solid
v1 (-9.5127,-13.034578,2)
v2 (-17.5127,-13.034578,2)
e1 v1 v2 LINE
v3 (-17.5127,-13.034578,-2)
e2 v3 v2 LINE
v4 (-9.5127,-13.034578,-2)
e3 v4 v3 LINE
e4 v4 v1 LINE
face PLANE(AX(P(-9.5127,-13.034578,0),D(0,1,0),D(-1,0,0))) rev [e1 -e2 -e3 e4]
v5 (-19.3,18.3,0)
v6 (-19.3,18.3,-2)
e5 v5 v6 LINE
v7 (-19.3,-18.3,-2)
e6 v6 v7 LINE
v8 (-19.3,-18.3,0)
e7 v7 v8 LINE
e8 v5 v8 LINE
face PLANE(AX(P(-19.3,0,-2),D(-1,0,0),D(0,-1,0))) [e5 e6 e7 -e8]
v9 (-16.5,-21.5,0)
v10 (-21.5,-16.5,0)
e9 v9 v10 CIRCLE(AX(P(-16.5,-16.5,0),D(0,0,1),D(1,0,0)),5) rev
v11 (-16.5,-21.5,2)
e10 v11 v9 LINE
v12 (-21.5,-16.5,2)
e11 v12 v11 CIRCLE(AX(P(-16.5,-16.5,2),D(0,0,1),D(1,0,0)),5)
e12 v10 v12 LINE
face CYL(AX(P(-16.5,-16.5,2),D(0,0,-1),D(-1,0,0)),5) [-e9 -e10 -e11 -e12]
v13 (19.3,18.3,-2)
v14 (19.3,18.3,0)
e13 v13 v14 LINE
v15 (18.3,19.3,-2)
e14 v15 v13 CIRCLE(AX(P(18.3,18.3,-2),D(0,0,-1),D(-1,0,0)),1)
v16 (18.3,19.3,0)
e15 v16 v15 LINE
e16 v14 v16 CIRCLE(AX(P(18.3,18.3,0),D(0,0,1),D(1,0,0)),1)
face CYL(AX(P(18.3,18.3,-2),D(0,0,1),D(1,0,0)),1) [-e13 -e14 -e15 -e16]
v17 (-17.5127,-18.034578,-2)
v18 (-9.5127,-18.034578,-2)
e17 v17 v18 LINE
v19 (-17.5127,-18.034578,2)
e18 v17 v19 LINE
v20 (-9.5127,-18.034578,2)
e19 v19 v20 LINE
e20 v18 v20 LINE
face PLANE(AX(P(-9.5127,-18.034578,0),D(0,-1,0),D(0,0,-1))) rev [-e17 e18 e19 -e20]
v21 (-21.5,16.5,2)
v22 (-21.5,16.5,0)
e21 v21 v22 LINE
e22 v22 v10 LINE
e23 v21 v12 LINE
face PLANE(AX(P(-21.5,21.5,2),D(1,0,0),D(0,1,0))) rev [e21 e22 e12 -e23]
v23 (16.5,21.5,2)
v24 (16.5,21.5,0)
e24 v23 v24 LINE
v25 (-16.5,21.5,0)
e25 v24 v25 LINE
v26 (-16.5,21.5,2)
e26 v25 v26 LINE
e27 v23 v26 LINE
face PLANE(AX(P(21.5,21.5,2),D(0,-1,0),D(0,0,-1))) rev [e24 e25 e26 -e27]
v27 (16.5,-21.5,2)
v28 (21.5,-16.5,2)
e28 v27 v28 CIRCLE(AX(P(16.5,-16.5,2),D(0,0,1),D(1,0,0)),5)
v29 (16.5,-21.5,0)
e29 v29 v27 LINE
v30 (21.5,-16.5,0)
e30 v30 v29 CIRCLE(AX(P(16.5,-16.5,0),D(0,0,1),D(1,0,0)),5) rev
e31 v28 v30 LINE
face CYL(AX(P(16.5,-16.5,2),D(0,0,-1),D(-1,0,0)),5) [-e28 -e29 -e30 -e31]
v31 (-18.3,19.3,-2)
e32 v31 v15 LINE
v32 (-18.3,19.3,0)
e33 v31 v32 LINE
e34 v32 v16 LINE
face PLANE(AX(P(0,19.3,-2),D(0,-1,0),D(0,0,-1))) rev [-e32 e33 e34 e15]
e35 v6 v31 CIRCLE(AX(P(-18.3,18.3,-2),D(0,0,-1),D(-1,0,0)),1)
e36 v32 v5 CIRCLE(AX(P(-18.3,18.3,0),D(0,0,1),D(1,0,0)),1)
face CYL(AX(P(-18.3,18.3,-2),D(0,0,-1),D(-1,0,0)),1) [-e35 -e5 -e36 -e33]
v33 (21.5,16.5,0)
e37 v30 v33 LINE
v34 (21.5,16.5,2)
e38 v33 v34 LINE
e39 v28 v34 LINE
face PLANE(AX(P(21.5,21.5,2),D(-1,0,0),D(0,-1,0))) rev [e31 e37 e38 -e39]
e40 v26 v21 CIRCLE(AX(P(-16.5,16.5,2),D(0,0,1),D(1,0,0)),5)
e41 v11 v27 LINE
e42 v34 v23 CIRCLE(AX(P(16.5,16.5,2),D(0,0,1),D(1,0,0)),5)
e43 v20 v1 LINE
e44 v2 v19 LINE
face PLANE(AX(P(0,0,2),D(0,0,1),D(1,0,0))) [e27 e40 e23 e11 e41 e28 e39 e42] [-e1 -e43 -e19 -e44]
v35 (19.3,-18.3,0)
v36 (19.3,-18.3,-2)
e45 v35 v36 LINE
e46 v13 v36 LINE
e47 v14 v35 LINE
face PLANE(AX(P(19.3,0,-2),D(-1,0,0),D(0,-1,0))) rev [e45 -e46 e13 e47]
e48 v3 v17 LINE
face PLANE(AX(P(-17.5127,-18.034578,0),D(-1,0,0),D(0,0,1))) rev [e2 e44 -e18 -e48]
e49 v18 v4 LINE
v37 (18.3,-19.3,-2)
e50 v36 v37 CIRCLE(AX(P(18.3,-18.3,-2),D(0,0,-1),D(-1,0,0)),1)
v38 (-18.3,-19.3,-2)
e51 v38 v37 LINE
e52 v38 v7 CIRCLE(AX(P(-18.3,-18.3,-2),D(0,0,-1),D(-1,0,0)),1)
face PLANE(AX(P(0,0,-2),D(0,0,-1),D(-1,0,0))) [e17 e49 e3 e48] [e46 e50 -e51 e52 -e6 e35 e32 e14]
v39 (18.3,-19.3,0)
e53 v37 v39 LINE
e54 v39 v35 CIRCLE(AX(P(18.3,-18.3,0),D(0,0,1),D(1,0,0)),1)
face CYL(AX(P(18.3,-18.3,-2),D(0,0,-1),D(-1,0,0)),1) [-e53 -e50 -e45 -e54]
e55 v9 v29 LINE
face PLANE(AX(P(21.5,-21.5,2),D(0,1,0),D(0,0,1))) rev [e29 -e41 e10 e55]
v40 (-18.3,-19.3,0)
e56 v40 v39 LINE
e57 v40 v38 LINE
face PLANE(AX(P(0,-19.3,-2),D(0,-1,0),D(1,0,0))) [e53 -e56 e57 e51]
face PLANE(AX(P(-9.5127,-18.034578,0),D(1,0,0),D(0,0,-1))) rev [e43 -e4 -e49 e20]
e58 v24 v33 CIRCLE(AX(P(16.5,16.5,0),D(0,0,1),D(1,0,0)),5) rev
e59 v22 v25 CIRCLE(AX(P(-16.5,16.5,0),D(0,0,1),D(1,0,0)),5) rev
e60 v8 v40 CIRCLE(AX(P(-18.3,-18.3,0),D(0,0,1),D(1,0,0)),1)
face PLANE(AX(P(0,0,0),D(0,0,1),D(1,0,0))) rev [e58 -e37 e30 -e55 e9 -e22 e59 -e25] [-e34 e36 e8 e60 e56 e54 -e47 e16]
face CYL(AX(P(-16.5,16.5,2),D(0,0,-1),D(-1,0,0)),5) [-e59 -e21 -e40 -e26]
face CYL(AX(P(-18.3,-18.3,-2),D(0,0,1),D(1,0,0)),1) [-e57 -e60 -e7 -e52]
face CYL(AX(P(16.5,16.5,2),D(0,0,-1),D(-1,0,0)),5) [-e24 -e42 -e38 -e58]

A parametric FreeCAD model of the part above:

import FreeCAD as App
import Part
import Sketcher


def edges_at(feature, points):
    """Names of the edges that pass closest to the given points."""
    edges = feature.Shape.Edges
    near = lambda p: min(range(len(edges)), key=lambda i: edges[i].distToShape(Part.Vertex(*p))[0])
    return sorted({f"Edge{near(p) + 1}" for p in points})


def add_polygon(sketch, points):
    """Adds a closed chain of lines whose ends are joined by coincident constraints."""
    first, n = sketch.GeometryCount, len(points)
    for a, b in zip(points, points[1:] + points[:1]):
        sketch.addGeometry(Part.LineSegment(App.Vector(*a, 0), App.Vector(*b, 0)), False)
    for i in range(n):
        sketch.addConstraint(Sketcher.Constraint("Coincident", first + i, 2, first + (i + 1) % n, 1))

doc = App.newDocument("Part")
body = doc.addObject("PartDesign::Body", "Body")

sketch1 = doc.addObject("Sketcher::SketchObject", "Sketch")
body.addObject(sketch1)
sketch1.AttachmentSupport = (doc.XY_Plane, [""])
sketch1.MapMode = "FlatFace"
add_polygon(sketch1, [(-21.5, -21.5), (21.5, -21.5), (21.5, 21.5), (-21.5, 21.5)])
sketch1.addConstraint([
    Sketcher.Constraint("Horizontal", 0),
    Sketcher.Constraint("Vertical", 1),
    Sketcher.Constraint("Horizontal", 2),
    Sketcher.Constraint("Vertical", 3),
    Sketcher.Constraint("Symmetric", 0, 2, 2, 2, -1, 1),
    Sketcher.Constraint("Equal", 2, 1),
    Sketcher.Constraint("DistanceX", 0, 1, 0, 2, 43.0),
])
pad1 = doc.addObject("PartDesign::Pad", "Pad")
body.addObject(pad1)
pad1.Profile = sketch1
pad1.Length = 2
doc.recompute()

fillet = doc.addObject("PartDesign::Fillet", "Fillet")
body.addObject(fillet)
fillet.Base = (pad1, edges_at(pad1, [
    (-21.5, -21.5, 1),
    (-21.5, 21.5, 1),
    (21.5, 21.5, 1),
    (21.5, -21.5, 1),
]))
fillet.Radius = 5

sketch2 = doc.addObject("Sketcher::SketchObject", "Sketch001")
body.addObject(sketch2)
sketch2.AttachmentSupport = (doc.XY_Plane, [""])
sketch2.MapMode = "FlatFace"
sketch2.AttachmentOffset = App.Placement(App.Vector(0, 0, 2), App.Rotation())
add_polygon(sketch2, [(-17.5127, -13.034578), (-17.5127, -18.034578), (-9.5127, -18.034578), (-9.5127, -13.034578)])
sketch2.addConstraint([
    Sketcher.Constraint("Vertical", 0),
    Sketcher.Constraint("Horizontal", 1),
    Sketcher.Constraint("Vertical", 2),
    Sketcher.Constraint("Horizontal", 3),
    Sketcher.Constraint("DistanceX", 1, 1, 1, 2, 8.0),
    Sketcher.Constraint("DistanceY", 0, 2, 0, 1, 5.0),
    Sketcher.Constraint("DistanceX", 0, 2, -1, 1, 17.5127),
    Sketcher.Constraint("DistanceY", 0, 2, -1, 1, 18.034578),
])
pocket1 = doc.addObject("PartDesign::Pocket", "Pocket")
body.addObject(pocket1)
pocket1.Profile = sketch2
pocket1.Type = "ThroughAll"

sketch3 = doc.addObject("Sketcher::SketchObject", "Sketch002")
body.addObject(sketch3)
sketch3.AttachmentSupport = (doc.XY_Plane, [""])
sketch3.MapMode = "FlatFace"
add_polygon(sketch3, [(19.3, -19.3), (-19.3, -19.3), (-19.3, 19.3), (19.3, 19.3)])
add_polygon(sketch3, [(-17.5127, -13.034578), (-17.5127, -18.034578), (-9.5127, -18.034578), (-9.5127, -13.034578)])
sketch3.addConstraint([
    Sketcher.Constraint("Horizontal", 0),
    Sketcher.Constraint("Vertical", 1),
    Sketcher.Constraint("Horizontal", 2),
    Sketcher.Constraint("Vertical", 3),
    Sketcher.Constraint("Vertical", 4),
    Sketcher.Constraint("Horizontal", 5),
    Sketcher.Constraint("Vertical", 6),
    Sketcher.Constraint("Horizontal", 7),
    Sketcher.Constraint("Symmetric", 0, 2, 2, 2, -1, 1),
    Sketcher.Constraint("Equal", 2, 1),
    Sketcher.Constraint("DistanceX", 5, 1, 5, 2, 8.0),
    Sketcher.Constraint("DistanceY", 4, 2, 4, 1, 5.0),
    Sketcher.Constraint("DistanceX", 0, 2, 0, 1, 38.6),
    Sketcher.Constraint("DistanceX", 4, 2, -1, 1, 17.5127),
    Sketcher.Constraint("DistanceY", 4, 2, -1, 1, 18.034578),
])
pad2 = doc.addObject("PartDesign::Pad", "Pad001")
body.addObject(pad2)
pad2.Profile = sketch3
pad2.Length = 2
pad2.Reversed = True
doc.recompute()

fillet2 = doc.addObject("PartDesign::Fillet", "Fillet001")
body.addObject(fillet2)
fillet2.Base = (pad2, edges_at(pad2, [
    (-19.3, -19.3, -1),
    (-19.3, 19.3, -1),
    (19.3, 19.3, -1),
    (19.3, -19.3, -1),
]))
fillet2.Radius = 1

doc.recompute()
